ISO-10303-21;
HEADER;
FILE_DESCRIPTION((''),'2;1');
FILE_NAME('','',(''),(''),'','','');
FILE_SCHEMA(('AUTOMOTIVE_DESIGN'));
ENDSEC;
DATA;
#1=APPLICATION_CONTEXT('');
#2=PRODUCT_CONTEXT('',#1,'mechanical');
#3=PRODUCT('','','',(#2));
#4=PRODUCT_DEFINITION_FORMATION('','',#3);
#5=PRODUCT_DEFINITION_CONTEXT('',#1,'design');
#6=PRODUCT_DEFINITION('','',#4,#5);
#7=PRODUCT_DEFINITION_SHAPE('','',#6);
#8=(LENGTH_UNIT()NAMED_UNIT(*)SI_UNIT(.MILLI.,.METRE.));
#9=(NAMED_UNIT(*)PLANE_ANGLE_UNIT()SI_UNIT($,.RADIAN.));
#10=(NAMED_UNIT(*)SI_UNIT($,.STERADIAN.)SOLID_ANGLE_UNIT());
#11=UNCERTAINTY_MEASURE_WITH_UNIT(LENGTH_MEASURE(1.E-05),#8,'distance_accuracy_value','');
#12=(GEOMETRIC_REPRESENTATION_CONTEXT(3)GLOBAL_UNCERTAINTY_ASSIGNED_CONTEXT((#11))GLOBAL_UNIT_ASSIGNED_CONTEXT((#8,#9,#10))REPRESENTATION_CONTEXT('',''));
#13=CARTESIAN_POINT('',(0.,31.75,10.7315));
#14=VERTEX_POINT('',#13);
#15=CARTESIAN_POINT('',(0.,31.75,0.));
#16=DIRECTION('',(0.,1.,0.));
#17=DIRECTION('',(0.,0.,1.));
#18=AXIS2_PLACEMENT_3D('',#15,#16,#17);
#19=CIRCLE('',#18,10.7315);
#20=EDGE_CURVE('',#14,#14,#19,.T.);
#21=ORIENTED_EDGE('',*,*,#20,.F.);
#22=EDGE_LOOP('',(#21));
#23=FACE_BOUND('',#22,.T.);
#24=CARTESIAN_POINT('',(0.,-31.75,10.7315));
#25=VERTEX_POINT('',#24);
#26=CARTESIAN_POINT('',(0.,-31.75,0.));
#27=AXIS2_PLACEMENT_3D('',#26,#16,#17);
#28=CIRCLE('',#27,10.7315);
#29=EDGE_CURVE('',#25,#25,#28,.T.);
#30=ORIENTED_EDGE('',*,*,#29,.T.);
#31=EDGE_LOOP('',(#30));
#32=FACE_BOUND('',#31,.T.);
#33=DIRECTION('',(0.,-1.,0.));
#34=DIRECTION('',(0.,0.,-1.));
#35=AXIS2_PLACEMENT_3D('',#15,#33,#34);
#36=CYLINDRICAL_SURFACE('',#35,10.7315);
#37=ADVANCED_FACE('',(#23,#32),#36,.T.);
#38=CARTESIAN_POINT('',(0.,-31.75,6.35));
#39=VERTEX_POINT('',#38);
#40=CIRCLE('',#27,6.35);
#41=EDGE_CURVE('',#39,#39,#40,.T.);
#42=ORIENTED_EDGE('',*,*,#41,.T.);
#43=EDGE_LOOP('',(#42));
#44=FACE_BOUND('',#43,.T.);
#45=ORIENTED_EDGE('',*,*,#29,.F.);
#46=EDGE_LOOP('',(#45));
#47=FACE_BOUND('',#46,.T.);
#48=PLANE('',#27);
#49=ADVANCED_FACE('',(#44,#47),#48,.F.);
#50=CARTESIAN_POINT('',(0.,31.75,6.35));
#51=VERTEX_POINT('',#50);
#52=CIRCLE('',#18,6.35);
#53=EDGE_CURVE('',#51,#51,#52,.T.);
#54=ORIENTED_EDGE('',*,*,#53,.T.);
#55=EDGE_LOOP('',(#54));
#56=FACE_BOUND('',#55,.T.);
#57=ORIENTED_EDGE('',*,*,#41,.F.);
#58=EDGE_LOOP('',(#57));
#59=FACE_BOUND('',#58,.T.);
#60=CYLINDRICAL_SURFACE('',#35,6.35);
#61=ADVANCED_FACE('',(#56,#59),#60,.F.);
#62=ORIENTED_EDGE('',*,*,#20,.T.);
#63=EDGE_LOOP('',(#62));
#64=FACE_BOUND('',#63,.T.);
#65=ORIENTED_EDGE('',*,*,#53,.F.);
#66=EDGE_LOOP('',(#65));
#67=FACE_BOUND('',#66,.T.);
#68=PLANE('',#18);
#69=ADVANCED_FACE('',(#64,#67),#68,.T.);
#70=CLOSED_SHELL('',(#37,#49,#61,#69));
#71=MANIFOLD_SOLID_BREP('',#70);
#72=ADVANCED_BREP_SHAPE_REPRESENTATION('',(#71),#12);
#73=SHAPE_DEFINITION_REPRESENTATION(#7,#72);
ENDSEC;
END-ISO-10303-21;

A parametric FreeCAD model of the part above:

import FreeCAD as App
import Part
import Sketcher
from FreeCAD import Vector
Q = App.Units.Quantity

doc = App.newDocument("Part")
body = doc.addObject("PartDesign::Body", "Body")

# Sketch on XZ plane
sketch1 = body.newObject("Sketcher::SketchObject", "Sketch")
sketch1.AttachmentSupport = (doc.getObject("XZ_Plane"), [""])
sketch1.MapMode = "FlatFace"
sketch1.addGeometry(Part.Circle(Vector(0, 0, 0), Vector(0, 0, 1), 10.7315), False)
sketch1.addGeometry(Part.Circle(Vector(0, 0, 0), Vector(0, 0, 1), 6.35), False)
sketch1.addConstraint(Sketcher.Constraint("Coincident", 0, 3, -1, 1))
sketch1.addConstraint(Sketcher.Constraint("Coincident", 1, 3, -1, 1))
sketch1.addConstraint(Sketcher.Constraint("Diameter", 1, Q("0.5 in")))
sketch1.addConstraint(Sketcher.Constraint("Diameter", 0, Q("0.845 in")))
pad1 = body.newObject("PartDesign::Pad", "Pad")
pad1.Profile = sketch1
pad1.Length = Q("2.5 in")
pad1.Midplane = True

doc.recompute()
